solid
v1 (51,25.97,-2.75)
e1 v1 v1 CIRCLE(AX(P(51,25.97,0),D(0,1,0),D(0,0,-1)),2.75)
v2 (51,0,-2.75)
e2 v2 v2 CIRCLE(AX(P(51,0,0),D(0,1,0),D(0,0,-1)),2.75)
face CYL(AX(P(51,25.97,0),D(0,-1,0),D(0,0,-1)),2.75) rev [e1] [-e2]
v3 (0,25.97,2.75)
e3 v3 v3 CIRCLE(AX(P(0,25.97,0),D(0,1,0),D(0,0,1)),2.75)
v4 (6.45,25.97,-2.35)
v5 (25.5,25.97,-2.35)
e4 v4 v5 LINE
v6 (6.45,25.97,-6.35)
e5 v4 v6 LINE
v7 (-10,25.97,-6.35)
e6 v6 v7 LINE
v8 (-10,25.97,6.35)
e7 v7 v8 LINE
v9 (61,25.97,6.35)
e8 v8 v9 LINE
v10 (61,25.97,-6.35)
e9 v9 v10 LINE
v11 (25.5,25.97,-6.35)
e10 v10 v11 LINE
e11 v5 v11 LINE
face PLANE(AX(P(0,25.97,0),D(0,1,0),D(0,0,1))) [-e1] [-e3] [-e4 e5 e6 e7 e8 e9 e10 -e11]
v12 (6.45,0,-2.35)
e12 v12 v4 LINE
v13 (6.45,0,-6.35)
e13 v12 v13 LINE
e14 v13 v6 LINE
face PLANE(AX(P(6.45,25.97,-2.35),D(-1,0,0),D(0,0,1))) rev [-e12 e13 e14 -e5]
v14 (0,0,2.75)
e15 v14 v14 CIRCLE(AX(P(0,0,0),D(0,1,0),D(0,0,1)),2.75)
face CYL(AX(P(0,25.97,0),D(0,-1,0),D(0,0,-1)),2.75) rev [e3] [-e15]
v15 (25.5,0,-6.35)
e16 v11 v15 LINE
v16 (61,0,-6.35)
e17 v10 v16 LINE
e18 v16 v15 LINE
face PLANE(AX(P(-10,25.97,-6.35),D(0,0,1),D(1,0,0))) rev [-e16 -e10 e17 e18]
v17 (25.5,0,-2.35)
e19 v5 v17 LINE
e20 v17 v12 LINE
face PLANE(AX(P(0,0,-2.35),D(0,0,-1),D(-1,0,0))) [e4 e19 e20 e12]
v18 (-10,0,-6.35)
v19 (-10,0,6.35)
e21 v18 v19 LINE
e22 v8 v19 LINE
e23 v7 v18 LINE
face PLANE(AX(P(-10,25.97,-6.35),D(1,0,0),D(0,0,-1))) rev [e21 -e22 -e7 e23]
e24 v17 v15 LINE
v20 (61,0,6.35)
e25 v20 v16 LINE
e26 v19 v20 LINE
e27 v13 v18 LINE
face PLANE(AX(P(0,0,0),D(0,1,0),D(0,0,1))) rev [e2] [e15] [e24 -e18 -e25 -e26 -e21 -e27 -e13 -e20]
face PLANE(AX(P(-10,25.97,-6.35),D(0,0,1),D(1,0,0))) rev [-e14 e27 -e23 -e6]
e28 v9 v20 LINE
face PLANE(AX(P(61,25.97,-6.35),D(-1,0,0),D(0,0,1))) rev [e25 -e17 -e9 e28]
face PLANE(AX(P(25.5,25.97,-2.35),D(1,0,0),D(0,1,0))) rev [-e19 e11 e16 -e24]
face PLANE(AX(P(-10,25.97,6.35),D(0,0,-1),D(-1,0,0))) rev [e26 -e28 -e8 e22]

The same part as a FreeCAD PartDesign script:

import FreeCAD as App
import Part
import Sketcher
from FreeCAD import Vector


def add_polygon(sketch, points):
    """Adds a closed chain of lines whose ends are joined by coincident constraints."""
    first, n = sketch.GeometryCount, len(points)
    for a, b in zip(points, points[1:] + points[:1]):
        sketch.addGeometry(Part.LineSegment(App.Vector(*a, 0), App.Vector(*b, 0)), False)
    for i in range(n):
        sketch.addConstraint(Sketcher.Constraint("Coincident", first + i, 2, first + (i + 1) % n, 1))

doc = App.newDocument("Part")
body = doc.addObject("PartDesign::Body", "Body")

sketch1 = body.newObject("Sketcher::SketchObject", "Sketch")
sketch1.AttachmentSupport = (doc.getObject("XZ_Plane"), [""])
sketch1.MapMode = "FlatFace"
add_polygon(sketch1, [(-10, -6.3), (-10, 6.3), (61, 6.3), (61, -6.3)])
sketch1.addGeometry(Part.Circle(Vector(0, 0, 0), Vector(0, 0, 1), 2.8), False)
sketch1.addGeometry(Part.Circle(Vector(51, 0, 0), Vector(0, 0, 1), 2.8), False)
sketch1.addConstraint(Sketcher.Constraint("Vertical", 0))
sketch1.addConstraint(Sketcher.Constraint("Horizontal", 1))
sketch1.addConstraint(Sketcher.Constraint("Vertical", 2))
sketch1.addConstraint(Sketcher.Constraint("Horizontal", 3))
sketch1.addConstraint(Sketcher.Constraint("Coincident", 4, 3, -1, 1))
sketch1.addConstraint(Sketcher.Constraint("Equal", 4, 5))
sketch1.addConstraint(Sketcher.Constraint("PointOnObject", 5, 3, -1))
sketch1.addConstraint(Sketcher.Constraint("Diameter", 4, 5.5))
sketch1.addConstraint(Sketcher.Constraint("DistanceX", 1, 1, 1, 2, 71.0))
sketch1.addConstraint(Sketcher.Constraint("DistanceY", 0, 1, 0, 2, 12.7))
sketch1.addConstraint(Sketcher.Constraint("DistanceX", -1, 1, 5, 3, 51.0))
sketch1.addConstraint(Sketcher.Constraint("DistanceX", 0, 2, -1, 1, 10.0))
sketch1.addConstraint(Sketcher.Constraint("DistanceY", -1, 1, 0, 2, 6.35))
pad1 = body.newObject("PartDesign::Pad", "Pad")
pad1.Profile = sketch1
pad1.Length = 25.97
pad1.Reversed = True

sketch2 = body.newObject("Sketcher::SketchObject", "Sketch001")
sketch2.AttachmentSupport = (doc.getObject("XY_Plane"), [""])
sketch2.MapMode = "FlatFace"
sketch2.AttachmentOffset = App.Placement(Vector(0, 0, -6.35), App.Rotation())
add_polygon(sketch2, [(26, 26), (26, 0), (6, 0), (6, 26)])
sketch2.addConstraint(Sketcher.Constraint("Vertical", 0))
sketch2.addConstraint(Sketcher.Constraint("Horizontal", 1))
sketch2.addConstraint(Sketcher.Constraint("Vertical", 2))
sketch2.addConstraint(Sketcher.Constraint("Horizontal", 3))
sketch2.addConstraint(Sketcher.Constraint("PointOnObject", 0, 2, -1))
sketch2.addConstraint(Sketcher.Constraint("DistanceX", 1, 2, 1, 1, 19.05))
sketch2.addConstraint(Sketcher.Constraint("DistanceY", 0, 2, 0, 1, 25.97))
sketch2.addConstraint(Sketcher.Constraint("DistanceX", -1, 1, 0, 2, 25.5))
pocket1 = body.newObject("PartDesign::Pocket", "Pocket")
pocket1.Profile = sketch2
pocket1.Length = 4
pocket1.Reversed = True

doc.recompute()
